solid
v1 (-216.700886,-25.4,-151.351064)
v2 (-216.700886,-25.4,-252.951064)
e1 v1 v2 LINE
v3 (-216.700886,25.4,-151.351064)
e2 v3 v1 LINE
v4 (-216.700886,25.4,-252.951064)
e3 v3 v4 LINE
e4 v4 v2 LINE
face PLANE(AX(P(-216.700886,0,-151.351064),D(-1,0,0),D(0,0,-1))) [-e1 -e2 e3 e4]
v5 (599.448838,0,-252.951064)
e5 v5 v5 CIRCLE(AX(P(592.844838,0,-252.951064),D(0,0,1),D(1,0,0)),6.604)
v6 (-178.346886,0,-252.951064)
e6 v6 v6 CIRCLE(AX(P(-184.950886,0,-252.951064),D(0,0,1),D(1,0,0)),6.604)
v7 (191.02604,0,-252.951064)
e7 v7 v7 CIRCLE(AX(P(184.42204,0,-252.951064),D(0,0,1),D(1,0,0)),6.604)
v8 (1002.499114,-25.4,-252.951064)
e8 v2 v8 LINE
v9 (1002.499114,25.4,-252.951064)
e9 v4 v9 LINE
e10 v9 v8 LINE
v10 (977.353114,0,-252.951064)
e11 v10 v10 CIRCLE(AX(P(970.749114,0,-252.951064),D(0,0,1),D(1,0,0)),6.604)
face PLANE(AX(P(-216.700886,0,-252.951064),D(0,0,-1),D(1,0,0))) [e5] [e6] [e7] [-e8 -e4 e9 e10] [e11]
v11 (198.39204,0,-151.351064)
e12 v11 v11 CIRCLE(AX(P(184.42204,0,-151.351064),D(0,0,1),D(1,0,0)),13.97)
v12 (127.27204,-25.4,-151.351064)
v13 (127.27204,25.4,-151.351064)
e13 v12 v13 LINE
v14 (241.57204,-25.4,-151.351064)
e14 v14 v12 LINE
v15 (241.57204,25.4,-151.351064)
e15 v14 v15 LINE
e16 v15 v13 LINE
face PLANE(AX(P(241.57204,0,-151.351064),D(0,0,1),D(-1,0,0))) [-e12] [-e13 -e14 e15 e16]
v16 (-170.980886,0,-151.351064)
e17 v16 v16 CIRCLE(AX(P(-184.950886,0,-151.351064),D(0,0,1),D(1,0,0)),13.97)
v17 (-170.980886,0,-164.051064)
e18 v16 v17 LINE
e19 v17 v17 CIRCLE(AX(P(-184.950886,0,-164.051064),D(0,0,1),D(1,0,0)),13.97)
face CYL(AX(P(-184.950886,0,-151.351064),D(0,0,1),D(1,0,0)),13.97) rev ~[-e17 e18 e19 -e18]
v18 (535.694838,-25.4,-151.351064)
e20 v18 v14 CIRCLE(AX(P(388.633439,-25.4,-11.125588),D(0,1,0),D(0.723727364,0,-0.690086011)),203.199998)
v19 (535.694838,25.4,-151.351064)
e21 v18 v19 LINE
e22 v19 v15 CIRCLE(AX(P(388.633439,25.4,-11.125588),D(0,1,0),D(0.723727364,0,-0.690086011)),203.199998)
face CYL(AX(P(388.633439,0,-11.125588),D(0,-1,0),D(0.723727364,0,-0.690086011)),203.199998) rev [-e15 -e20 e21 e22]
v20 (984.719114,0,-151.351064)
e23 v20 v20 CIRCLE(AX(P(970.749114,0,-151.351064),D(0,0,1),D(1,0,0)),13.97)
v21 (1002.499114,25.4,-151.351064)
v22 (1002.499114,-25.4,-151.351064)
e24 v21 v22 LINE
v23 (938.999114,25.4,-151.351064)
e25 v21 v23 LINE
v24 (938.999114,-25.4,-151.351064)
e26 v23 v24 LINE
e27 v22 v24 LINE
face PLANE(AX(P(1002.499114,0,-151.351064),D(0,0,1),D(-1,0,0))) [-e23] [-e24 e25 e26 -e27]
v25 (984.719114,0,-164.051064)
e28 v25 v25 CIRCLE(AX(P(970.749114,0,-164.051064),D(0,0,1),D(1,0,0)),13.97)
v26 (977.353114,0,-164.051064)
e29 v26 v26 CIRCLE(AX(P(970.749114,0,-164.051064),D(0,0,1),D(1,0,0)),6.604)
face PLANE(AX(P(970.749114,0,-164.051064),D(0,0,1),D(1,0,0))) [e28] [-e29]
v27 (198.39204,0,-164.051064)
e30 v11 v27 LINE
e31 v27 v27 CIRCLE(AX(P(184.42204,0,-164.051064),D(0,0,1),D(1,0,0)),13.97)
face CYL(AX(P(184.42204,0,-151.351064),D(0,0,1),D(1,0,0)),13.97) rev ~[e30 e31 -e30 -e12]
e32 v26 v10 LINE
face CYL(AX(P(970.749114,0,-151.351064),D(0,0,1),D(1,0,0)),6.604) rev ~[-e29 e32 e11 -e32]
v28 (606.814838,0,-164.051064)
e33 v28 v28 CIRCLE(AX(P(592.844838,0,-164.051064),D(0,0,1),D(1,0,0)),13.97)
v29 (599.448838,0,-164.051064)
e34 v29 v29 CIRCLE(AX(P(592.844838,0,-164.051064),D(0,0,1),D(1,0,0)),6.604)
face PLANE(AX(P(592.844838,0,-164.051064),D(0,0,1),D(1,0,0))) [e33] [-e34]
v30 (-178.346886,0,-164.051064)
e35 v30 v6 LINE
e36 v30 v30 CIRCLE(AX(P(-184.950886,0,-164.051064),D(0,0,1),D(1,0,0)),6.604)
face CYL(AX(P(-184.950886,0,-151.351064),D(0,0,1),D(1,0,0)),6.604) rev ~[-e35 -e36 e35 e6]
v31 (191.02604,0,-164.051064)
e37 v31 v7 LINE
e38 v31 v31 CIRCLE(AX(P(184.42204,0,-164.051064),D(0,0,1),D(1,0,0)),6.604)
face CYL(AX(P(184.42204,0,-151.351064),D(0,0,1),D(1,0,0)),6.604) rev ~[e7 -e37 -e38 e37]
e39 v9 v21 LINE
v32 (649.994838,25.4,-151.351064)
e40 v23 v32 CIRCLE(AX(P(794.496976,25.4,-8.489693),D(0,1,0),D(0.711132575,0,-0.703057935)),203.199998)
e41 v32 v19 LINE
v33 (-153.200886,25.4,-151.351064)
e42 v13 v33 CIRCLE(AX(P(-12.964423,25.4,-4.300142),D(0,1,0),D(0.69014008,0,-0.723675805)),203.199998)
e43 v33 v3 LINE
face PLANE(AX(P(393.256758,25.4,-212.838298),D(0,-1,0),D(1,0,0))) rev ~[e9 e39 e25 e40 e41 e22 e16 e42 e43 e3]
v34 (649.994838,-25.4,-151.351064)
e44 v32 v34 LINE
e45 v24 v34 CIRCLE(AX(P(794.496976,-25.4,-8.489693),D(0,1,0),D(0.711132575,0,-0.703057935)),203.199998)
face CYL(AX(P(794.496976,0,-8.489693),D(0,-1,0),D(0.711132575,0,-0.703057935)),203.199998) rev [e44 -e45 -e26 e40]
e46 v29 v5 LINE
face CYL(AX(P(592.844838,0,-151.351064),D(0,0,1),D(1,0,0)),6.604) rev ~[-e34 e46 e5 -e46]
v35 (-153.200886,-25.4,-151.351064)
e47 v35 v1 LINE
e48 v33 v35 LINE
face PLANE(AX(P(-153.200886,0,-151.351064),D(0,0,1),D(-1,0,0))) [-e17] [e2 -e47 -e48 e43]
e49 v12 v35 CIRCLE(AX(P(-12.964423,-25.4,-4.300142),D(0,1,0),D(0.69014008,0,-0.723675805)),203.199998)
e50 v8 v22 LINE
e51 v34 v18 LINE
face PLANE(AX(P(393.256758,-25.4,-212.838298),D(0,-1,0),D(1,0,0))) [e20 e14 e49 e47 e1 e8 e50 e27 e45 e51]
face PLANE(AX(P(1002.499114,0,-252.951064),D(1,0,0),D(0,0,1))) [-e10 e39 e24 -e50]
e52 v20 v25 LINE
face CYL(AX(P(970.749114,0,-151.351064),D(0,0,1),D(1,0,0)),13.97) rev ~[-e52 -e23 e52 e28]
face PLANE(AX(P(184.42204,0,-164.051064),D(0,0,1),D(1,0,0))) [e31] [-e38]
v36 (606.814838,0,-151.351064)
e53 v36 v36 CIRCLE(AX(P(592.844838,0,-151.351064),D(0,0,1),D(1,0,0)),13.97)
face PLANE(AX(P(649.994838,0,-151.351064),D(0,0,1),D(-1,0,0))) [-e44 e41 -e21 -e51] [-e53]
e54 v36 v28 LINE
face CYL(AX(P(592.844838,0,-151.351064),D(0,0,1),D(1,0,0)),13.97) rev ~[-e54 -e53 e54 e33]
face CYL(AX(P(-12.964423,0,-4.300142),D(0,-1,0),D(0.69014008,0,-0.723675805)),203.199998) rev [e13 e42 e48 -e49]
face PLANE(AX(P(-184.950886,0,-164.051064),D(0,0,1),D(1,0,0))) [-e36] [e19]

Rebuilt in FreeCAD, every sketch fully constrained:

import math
import FreeCAD as App
import Part
import Sketcher
Q = App.Units.Quantity

doc = App.newDocument("Part")
body = doc.addObject("PartDesign::Body", "Body")

sketch1 = doc.addObject("Sketcher::SketchObject", "Sketch")
body.addObject(sketch1)
sketch1.AttachmentSupport = (doc.XZ_Plane, [""])
sketch1.MapMode = "FlatFace"
sketch1.addGeometry([
    Part.ArcOfCircle(Part.Circle(App.Vector(-12.964423, -4.300142, 0), App.Vector(0, 0, 1), 203.199998), math.radians(-133.641198), math.radians(-46.358802)),
    Part.LineSegment(App.Vector(-153.200886, -151.351064, 0), App.Vector(-216.700886, -151.351064, 0)),
    Part.LineSegment(App.Vector(-216.700886, -151.351064, 0), App.Vector(-216.700886, -252.951064, 0)),
    Part.LineSegment(App.Vector(-216.700886, -252.951064, 0), App.Vector(1002.499114, -252.951064, 0)),
    Part.LineSegment(App.Vector(1002.499114, -252.951064, 0), App.Vector(1002.499114, -151.351064, 0)),
    Part.LineSegment(App.Vector(1002.499114, -151.351064, 0), App.Vector(938.999114, -151.351064, 0)),
    Part.ArcOfCircle(Part.Circle(App.Vector(794.496976, -8.489693, 0), App.Vector(0, 0, 1), 203.199998), math.radians(-135.32714), math.radians(-44.67286)),
    Part.LineSegment(App.Vector(649.994838, -151.351064, 0), App.Vector(535.694838, -151.351064, 0)),
    Part.ArcOfCircle(Part.Circle(App.Vector(388.633439, -11.125588, 0), App.Vector(0, 0, 1), 203.199998), math.radians(-136.363082), math.radians(-43.636918)),
    Part.LineSegment(App.Vector(241.57204, -151.351064, 0), App.Vector(127.27204, -151.351064, 0)),
], False)
sketch1.addConstraint([
    Sketcher.Constraint("Coincident", 0, 1, 1, 1),
    Sketcher.Constraint("Coincident", 1, 2, 2, 1),
    Sketcher.Constraint("Coincident", 2, 2, 3, 1),
    Sketcher.Constraint("Coincident", 3, 2, 4, 1),
    Sketcher.Constraint("Coincident", 4, 2, 5, 1),
    Sketcher.Constraint("Coincident", 5, 2, 6, 2),
    Sketcher.Constraint("Coincident", 6, 1, 7, 1),
    Sketcher.Constraint("Coincident", 7, 2, 8, 2),
    Sketcher.Constraint("Coincident", 8, 1, 9, 1),
    Sketcher.Constraint("Coincident", 9, 2, 0, 2),
    Sketcher.Constraint("Horizontal", 1),
    Sketcher.Constraint("Vertical", 2),
    Sketcher.Constraint("Horizontal", 3),
    Sketcher.Constraint("Vertical", 4),
    Sketcher.Constraint("Horizontal", 5),
    Sketcher.Constraint("Horizontal", 7),
    Sketcher.Constraint("Horizontal", 9),
    Sketcher.Constraint("Equal", 0, 6),
    Sketcher.Constraint("Equal", 6, 8),
    Sketcher.Constraint("Horizontal", 1, 2, 4, 2),
    Sketcher.Constraint("Horizontal", 5, 2, 6, 1),
    Sketcher.Constraint("Horizontal", 7, 2, 8, 1),
    Sketcher.Constraint("Equal", 1, 5),
    Sketcher.Constraint("Equal", 7, 9),
    Sketcher.Constraint("Radius", 0, Q("7.9999999 in")),
    Sketcher.Constraint("DistanceX", 3, 1, 3, 2, Q("48 in")),
    Sketcher.Constraint("DistanceY", 2, 2, 2, 1, Q("4 in")),
    Sketcher.Constraint("DistanceX", 1, 2, 1, 1, Q("2.5 in")),
    Sketcher.Constraint("DistanceX", 7, 2, 7, 1, Q("4.5 in")),
    Sketcher.Constraint("DistanceX", 0, 3, 6, 3, 807.461399),
    Sketcher.Constraint("DistanceY", 0, 3, -1, 1, 4.300142),
    Sketcher.Constraint("DistanceX", -1, 1, 8, 3, 388.633439),
    Sketcher.Constraint("DistanceY", 6, 3, 0, 3, 4.189551),
])
pad1 = doc.addObject("PartDesign::Pad", "Pad")
body.addObject(pad1)
pad1.Profile = sketch1
pad1.Length = Q("2 in")
pad1.Midplane = True

sketch2 = doc.addObject("Sketcher::SketchObject", "Sketch001")
body.addObject(sketch2)
sketch2.AttachmentSupport = (doc.XY_Plane, [""])
sketch2.MapMode = "FlatFace"
sketch2.AttachmentOffset = App.Placement(App.Vector(0, 0, -151.351064), App.Rotation())
sketch2.addGeometry(Part.Circle(App.Vector(-184.950886, 0, 0), App.Vector(0, 0, 1), 6.604), False)
sketch2.addConstraint([
    Sketcher.Constraint("PointOnObject", 0, 3, -1),
    Sketcher.Constraint("Diameter", 0, Q("0.52 in")),
    Sketcher.Constraint("DistanceX", 0, 3, -1, 1, 184.950886),
])
pocket1 = doc.addObject("PartDesign::Pocket", "Pocket")
body.addObject(pocket1)
pocket1.Profile = sketch2
pocket1.Type = "ThroughAll"

sketch3 = doc.addObject("Sketcher::SketchObject", "Sketch002")
body.addObject(sketch3)
sketch3.AttachmentSupport = (doc.XY_Plane, [""])
sketch3.MapMode = "FlatFace"
sketch3.AttachmentOffset = App.Placement(App.Vector(0, 0, -151.351064), App.Rotation())
sketch3.addGeometry(Part.Circle(App.Vector(-184.950886, 0, 0), App.Vector(0, 0, 1), 13.97), False)
sketch3.addConstraint([
    Sketcher.Constraint("PointOnObject", 0, 3, -1),
    Sketcher.Constraint("Diameter", 0, Q("1.1 in")),
    Sketcher.Constraint("DistanceX", 0, 3, -1, 1, 184.950886),
])
pocket2 = doc.addObject("PartDesign::Pocket", "Pocket001")
body.addObject(pocket2)
pocket2.Profile = sketch3
pocket2.Length = Q("0.5 in")

sketch4 = doc.addObject("Sketcher::SketchObject", "Sketch003")
body.addObject(sketch4)
sketch4.AttachmentSupport = (doc.XY_Plane, [""])
sketch4.MapMode = "FlatFace"
sketch4.AttachmentOffset = App.Placement(App.Vector(0, 0, -151.351064), App.Rotation())
sketch4.addGeometry(Part.Circle(App.Vector(184.42204, 0, 0), App.Vector(0, 0, 1), 6.604), False)
sketch4.addConstraint([
    Sketcher.Constraint("PointOnObject", 0, 3, -1),
    Sketcher.Constraint("Diameter", 0, Q("0.52 in")),
    Sketcher.Constraint("DistanceX", -1, 1, 0, 3, 184.42204),
])
pocket3 = doc.addObject("PartDesign::Pocket", "Pocket002")
body.addObject(pocket3)
pocket3.Profile = sketch4
pocket3.Type = "ThroughAll"

sketch5 = doc.addObject("Sketcher::SketchObject", "Sketch004")
body.addObject(sketch5)
sketch5.AttachmentSupport = (doc.XY_Plane, [""])
sketch5.MapMode = "FlatFace"
sketch5.AttachmentOffset = App.Placement(App.Vector(0, 0, -151.351064), App.Rotation())
sketch5.addGeometry(Part.Circle(App.Vector(184.42204, 0, 0), App.Vector(0, 0, 1), 13.97), False)
sketch5.addConstraint([
    Sketcher.Constraint("PointOnObject", 0, 3, -1),
    Sketcher.Constraint("Diameter", 0, Q("1.1 in")),
    Sketcher.Constraint("DistanceX", -1, 1, 0, 3, 184.42204),
])
pocket4 = doc.addObject("PartDesign::Pocket", "Pocket003")
body.addObject(pocket4)
pocket4.Profile = sketch5
pocket4.Length = Q("0.5 in")

sketch6 = doc.addObject("Sketcher::SketchObject", "Sketch005")
body.addObject(sketch6)
sketch6.AttachmentSupport = (doc.XY_Plane, [""])
sketch6.MapMode = "FlatFace"
sketch6.AttachmentOffset = App.Placement(App.Vector(0, 0, -151.351064), App.Rotation())
sketch6.addGeometry(Part.Circle(App.Vector(592.844838, 0, 0), App.Vector(0, 0, 1), 6.604), False)
sketch6.addConstraint([
    Sketcher.Constraint("PointOnObject", 0, 3, -1),
    Sketcher.Constraint("Diameter", 0, Q("0.52 in")),
    Sketcher.Constraint("DistanceX", -1, 1, 0, 3, 592.844838),
])
pocket5 = doc.addObject("PartDesign::Pocket", "Pocket004")
body.addObject(pocket5)
pocket5.Profile = sketch6
pocket5.Type = "ThroughAll"

sketch7 = doc.addObject("Sketcher::SketchObject", "Sketch006")
body.addObject(sketch7)
sketch7.AttachmentSupport = (doc.XY_Plane, [""])
sketch7.MapMode = "FlatFace"
sketch7.AttachmentOffset = App.Placement(App.Vector(0, 0, -151.351064), App.Rotation())
sketch7.addGeometry(Part.Circle(App.Vector(592.844838, 0, 0), App.Vector(0, 0, 1), 13.97), False)
sketch7.addConstraint([
    Sketcher.Constraint("PointOnObject", 0, 3, -1),
    Sketcher.Constraint("Diameter", 0, Q("1.1 in")),
    Sketcher.Constraint("DistanceX", -1, 1, 0, 3, 592.844838),
])
pocket6 = doc.addObject("PartDesign::Pocket", "Pocket005")
body.addObject(pocket6)
pocket6.Profile = sketch7
pocket6.Length = Q("0.5 in")

sketch8 = doc.addObject("Sketcher::SketchObject", "Sketch007")
body.addObject(sketch8)
sketch8.AttachmentSupport = (doc.XY_Plane, [""])
sketch8.MapMode = "FlatFace"
sketch8.AttachmentOffset = App.Placement(App.Vector(0, 0, -151.351064), App.Rotation())
sketch8.addGeometry(Part.Circle(App.Vector(970.749114, 0, 0), App.Vector(0, 0, 1), 6.604), False)
sketch8.addConstraint([
    Sketcher.Constraint("PointOnObject", 0, 3, -1),
    Sketcher.Constraint("Diameter", 0, Q("0.52 in")),
    Sketcher.Constraint("DistanceX", -1, 1, 0, 3, 970.749114),
])
pocket7 = doc.addObject("PartDesign::Pocket", "Pocket006")
body.addObject(pocket7)
pocket7.Profile = sketch8
pocket7.Type = "ThroughAll"

sketch9 = doc.addObject("Sketcher::SketchObject", "Sketch008")
body.addObject(sketch9)
sketch9.AttachmentSupport = (doc.XY_Plane, [""])
sketch9.MapMode = "FlatFace"
sketch9.AttachmentOffset = App.Placement(App.Vector(0, 0, -151.351064), App.Rotation())
sketch9.addGeometry(Part.Circle(App.Vector(970.749114, 0, 0), App.Vector(0, 0, 1), 13.97), False)
sketch9.addConstraint([
    Sketcher.Constraint("PointOnObject", 0, 3, -1),
    Sketcher.Constraint("Diameter", 0, Q("1.1 in")),
    Sketcher.Constraint("DistanceX", -1, 1, 0, 3, 970.749114),
])
pocket8 = doc.addObject("PartDesign::Pocket", "Pocket007")
body.addObject(pocket8)
pocket8.Profile = sketch9
pocket8.Length = Q("0.5 in")

doc.recompute()
